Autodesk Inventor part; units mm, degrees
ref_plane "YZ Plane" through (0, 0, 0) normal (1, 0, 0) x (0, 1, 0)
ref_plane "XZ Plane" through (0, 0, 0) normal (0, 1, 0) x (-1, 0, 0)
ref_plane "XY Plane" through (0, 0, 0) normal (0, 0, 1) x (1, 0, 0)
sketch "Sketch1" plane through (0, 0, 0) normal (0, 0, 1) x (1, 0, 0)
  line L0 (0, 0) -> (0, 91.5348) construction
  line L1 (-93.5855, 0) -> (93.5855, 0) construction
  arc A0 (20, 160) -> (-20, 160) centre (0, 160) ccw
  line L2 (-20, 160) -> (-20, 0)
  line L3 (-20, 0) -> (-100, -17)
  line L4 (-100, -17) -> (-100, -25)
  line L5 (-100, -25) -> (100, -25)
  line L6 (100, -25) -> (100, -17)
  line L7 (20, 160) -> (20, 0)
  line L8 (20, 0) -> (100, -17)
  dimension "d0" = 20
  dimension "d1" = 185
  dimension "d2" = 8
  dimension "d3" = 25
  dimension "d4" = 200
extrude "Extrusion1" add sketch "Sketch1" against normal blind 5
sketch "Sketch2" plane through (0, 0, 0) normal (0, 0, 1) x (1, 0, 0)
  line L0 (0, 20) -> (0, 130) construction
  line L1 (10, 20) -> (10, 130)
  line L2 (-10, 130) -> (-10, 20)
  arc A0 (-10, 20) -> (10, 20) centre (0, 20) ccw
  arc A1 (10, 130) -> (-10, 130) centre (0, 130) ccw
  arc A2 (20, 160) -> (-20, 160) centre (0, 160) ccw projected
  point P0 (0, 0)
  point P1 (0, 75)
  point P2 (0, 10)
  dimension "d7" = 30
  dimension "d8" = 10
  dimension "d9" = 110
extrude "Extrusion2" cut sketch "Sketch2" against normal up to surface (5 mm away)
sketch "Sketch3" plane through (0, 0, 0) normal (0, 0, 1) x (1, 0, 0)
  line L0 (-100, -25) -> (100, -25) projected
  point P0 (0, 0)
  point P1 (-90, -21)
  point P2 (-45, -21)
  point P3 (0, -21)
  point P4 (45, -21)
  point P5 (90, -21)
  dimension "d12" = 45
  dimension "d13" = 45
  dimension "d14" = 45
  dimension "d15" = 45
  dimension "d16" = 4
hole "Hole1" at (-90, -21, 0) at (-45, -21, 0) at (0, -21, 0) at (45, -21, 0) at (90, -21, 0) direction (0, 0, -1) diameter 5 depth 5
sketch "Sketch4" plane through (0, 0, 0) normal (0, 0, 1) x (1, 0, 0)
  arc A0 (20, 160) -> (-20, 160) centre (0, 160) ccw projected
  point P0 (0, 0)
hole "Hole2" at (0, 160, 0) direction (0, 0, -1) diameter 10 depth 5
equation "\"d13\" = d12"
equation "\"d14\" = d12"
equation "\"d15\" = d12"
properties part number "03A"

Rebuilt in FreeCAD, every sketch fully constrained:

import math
import FreeCAD as App
import Part
import Sketcher

doc = App.newDocument("Part")
params = doc.addObject("Spreadsheet::Sheet", "Params")
for row, (alias, value) in enumerate([
    ("sketch1_radius", "20 mm"),
    ("sketch1_width", "200 mm"),
    ("sketch1_height", "8 mm"),
    ("pad1_length", "5 mm"),
    ("sketch2_radius", "10 mm"),
    ("sketch2_height", "110 mm"),
    ("pocket1_length", "5 mm"),
    ("sketch3_diameter", "5 mm"),
    ("hole_diameter", "5 mm"),
    ("hole_depth", "5 mm"),
    ("sketch4_diameter", "10 mm"),
    ("hole2_diameter", "10 mm"),
    ("hole2_depth", "5 mm"),
], start=1):
    params.set(f"A{row}", alias)
    params.set(f"B{row}", "=" + value)
    params.setAlias(f"B{row}", alias)

body = doc.addObject("PartDesign::Body", "Body")

# Sketch on XY plane
sketch1 = doc.addObject("Sketcher::SketchObject", "Sketch")
body.addObject(sketch1)
sketch1.AttachmentSupport = (doc.XY_Plane, [""])
sketch1.MapMode = "FlatFace"
sketch1.addGeometry(Part.LineSegment(App.Vector(20, 0, 0), App.Vector(20, 160, 0)), False)
sketch1.addGeometry(Part.ArcOfCircle(Part.Circle(App.Vector(0, 160, 0), App.Vector(0, 0, 1), 20), math.radians(0), math.radians(180)), False)
sketch1.addGeometry(Part.LineSegment(App.Vector(-20, 160, 0), App.Vector(-20, 0, 0)), False)
sketch1.addGeometry(Part.LineSegment(App.Vector(-20, 0, 0), App.Vector(-100, -17, 0)), False)
sketch1.addGeometry(Part.LineSegment(App.Vector(-100, -17, 0), App.Vector(-100, -25, 0)), False)
sketch1.addGeometry(Part.LineSegment(App.Vector(-100, -25, 0), App.Vector(100, -25, 0)), False)
sketch1.addGeometry(Part.LineSegment(App.Vector(100, -25, 0), App.Vector(100, -17, 0)), False)
sketch1.addGeometry(Part.LineSegment(App.Vector(100, -17, 0), App.Vector(20, 0, 0)), False)
sketch1.addConstraint(Sketcher.Constraint("Tangent", 0, 2, 1, 1))
sketch1.addConstraint(Sketcher.Constraint("Tangent", 1, 2, 2, 1))
sketch1.addConstraint(Sketcher.Constraint("Coincident", 2, 2, 3, 1))
sketch1.addConstraint(Sketcher.Constraint("Coincident", 3, 2, 4, 1))
sketch1.addConstraint(Sketcher.Constraint("Coincident", 4, 2, 5, 1))
sketch1.addConstraint(Sketcher.Constraint("Coincident", 5, 2, 6, 1))
sketch1.addConstraint(Sketcher.Constraint("Coincident", 6, 2, 7, 1))
sketch1.addConstraint(Sketcher.Constraint("Coincident", 7, 2, 0, 1))
sketch1.addConstraint(Sketcher.Constraint("Vertical", 0))
sketch1.addConstraint(Sketcher.Constraint("Vertical", 2))
sketch1.addConstraint(Sketcher.Constraint("Vertical", 4))
sketch1.addConstraint(Sketcher.Constraint("Horizontal", 5))
sketch1.addConstraint(Sketcher.Constraint("Vertical", 6))
sketch1.addConstraint(Sketcher.Constraint("Symmetric", 2, 2, 7, 2, -1, 1))
sketch1.addConstraint(Sketcher.Constraint("Symmetric", 3, 2, 6, 2, -2))
sketch1.addConstraint(Sketcher.Constraint("PointOnObject", 2, 2, -1))
sketch1.addConstraint(Sketcher.Constraint("Radius", 1, 20.0))
sketch1.addConstraint(Sketcher.Constraint("DistanceX", 5, 1, 5, 2, 200.0))
sketch1.addConstraint(Sketcher.Constraint("DistanceY", 4, 2, 4, 1, 8.0))
sketch1.addConstraint(Sketcher.Constraint("DistanceY", 4, 2, -1, 1, 25.0))
sketch1.addConstraint(Sketcher.Constraint("DistanceY", 4, 2, 1, 2, 185.0))
sketch1.setExpression("Constraints[16]", "Params.sketch1_radius")
sketch1.setExpression("Constraints[17]", "Params.sketch1_width")
sketch1.setExpression("Constraints[18]", "Params.sketch1_height")
pad1 = doc.addObject("PartDesign::Pad", "Pad")
body.addObject(pad1)
pad1.Profile = sketch1
pad1.setExpression("Length", "Params.pad1_length")
pad1.Reversed = True

# Sketch on XY plane
sketch2 = doc.addObject("Sketcher::SketchObject", "Sketch001")
body.addObject(sketch2)
sketch2.AttachmentSupport = (doc.XY_Plane, [""])
sketch2.MapMode = "FlatFace"
sketch2.addGeometry(Part.ArcOfCircle(Part.Circle(App.Vector(0, 20, 0), App.Vector(0, 0, 1), 10), math.radians(180), math.radians(360)), False)
sketch2.addGeometry(Part.LineSegment(App.Vector(10, 20, 0), App.Vector(10, 130, 0)), False)
sketch2.addGeometry(Part.ArcOfCircle(Part.Circle(App.Vector(0, 130, 0), App.Vector(0, 0, 1), 10), math.radians(0), math.radians(180)), False)
sketch2.addGeometry(Part.LineSegment(App.Vector(-10, 130, 0), App.Vector(-10, 20, 0)), False)
sketch2.addConstraint(Sketcher.Constraint("Tangent", 0, 2, 1, 1))
sketch2.addConstraint(Sketcher.Constraint("Tangent", 1, 2, 2, 1))
sketch2.addConstraint(Sketcher.Constraint("Tangent", 2, 2, 3, 1))
sketch2.addConstraint(Sketcher.Constraint("Tangent", 3, 2, 0, 1))
sketch2.addConstraint(Sketcher.Constraint("Vertical", 1))
sketch2.addConstraint(Sketcher.Constraint("Vertical", 3))
sketch2.addConstraint(Sketcher.Constraint("PointOnObject", 0, 3, -2))
sketch2.addConstraint(Sketcher.Constraint("Radius", 0, 10.0))
sketch2.addConstraint(Sketcher.Constraint("DistanceY", 1, 1, 1, 2, 110.0))
sketch2.addConstraint(Sketcher.Constraint("DistanceY", -1, 1, 0, 3, 20.0))
sketch2.setExpression("Constraints[7]", "Params.sketch2_radius")
sketch2.setExpression("Constraints[8]", "Params.sketch2_height")
pocket1 = doc.addObject("PartDesign::Pocket", "Pocket")
body.addObject(pocket1)
pocket1.Profile = sketch2
pocket1.setExpression("Length", "Params.pocket1_length")

# Sketch on XY plane
sketch3 = doc.addObject("Sketcher::SketchObject", "Sketch002")
body.addObject(sketch3)
sketch3.AttachmentSupport = (doc.XY_Plane, [""])
sketch3.MapMode = "FlatFace"
sketch3.addGeometry(Part.Circle(App.Vector(-90, -21, 0), App.Vector(0, 0, 1), 2.5), False)
sketch3.addGeometry(Part.Circle(App.Vector(-45, -21, 0), App.Vector(0, 0, 1), 2.5), False)
sketch3.addGeometry(Part.Circle(App.Vector(0, -21, 0), App.Vector(0, 0, 1), 2.5), False)
sketch3.addGeometry(Part.Circle(App.Vector(45, -21, 0), App.Vector(0, 0, 1), 2.5), False)
sketch3.addGeometry(Part.Circle(App.Vector(90, -21, 0), App.Vector(0, 0, 1), 2.5), False)
sketch3.addConstraint(Sketcher.Constraint("Equal", 0, 1))
sketch3.addConstraint(Sketcher.Constraint("Equal", 1, 2))
sketch3.addConstraint(Sketcher.Constraint("Equal", 2, 3))
sketch3.addConstraint(Sketcher.Constraint("Equal", 3, 4))
sketch3.addConstraint(Sketcher.Constraint("Symmetric", 1, 3, 3, 3, -2))
sketch3.addConstraint(Sketcher.Constraint("Symmetric", 0, 3, 4, 3, -2))
sketch3.addConstraint(Sketcher.Constraint("PointOnObject", 2, 3, -2))
sketch3.addConstraint(Sketcher.Constraint("Horizontal", 0, 3, 1, 3))
sketch3.addConstraint(Sketcher.Constraint("Horizontal", 1, 3, 2, 3))
sketch3.addConstraint(Sketcher.Constraint("Diameter", 0, 5.0))
sketch3.addConstraint(Sketcher.Constraint("DistanceX", 0, 3, -1, 1, 90.0))
sketch3.addConstraint(Sketcher.Constraint("DistanceY", 0, 3, -1, 1, 21.0))
sketch3.addConstraint(Sketcher.Constraint("DistanceX", 1, 3, -1, 1, 45.0))
sketch3.setExpression("Constraints[9]", "Params.sketch3_diameter")
doc.recompute()
hole = doc.addObject("PartDesign::Hole", "Hole")
body.addObject(hole)
hole.Profile = sketch3
hole.ThreadType = "None"
hole.setExpression("Diameter", "Params.hole_diameter")
hole.DepthType = "Dimension"
hole.setExpression("Depth", "Params.hole_depth")
hole.DrillPoint = "Flat"

# Sketch on XY plane
sketch4 = doc.addObject("Sketcher::SketchObject", "Sketch003")
body.addObject(sketch4)
sketch4.AttachmentSupport = (doc.XY_Plane, [""])
sketch4.MapMode = "FlatFace"
sketch4.addGeometry(Part.Circle(App.Vector(0, 160, 0), App.Vector(0, 0, 1), 5), False)
sketch4.addConstraint(Sketcher.Constraint("PointOnObject", 0, 3, -2))
sketch4.addConstraint(Sketcher.Constraint("Diameter", 0, 10.0))
sketch4.addConstraint(Sketcher.Constraint("DistanceY", -1, 1, 0, 3, 160.0))
sketch4.setExpression("Constraints[1]", "Params.sketch4_diameter")
doc.recompute()
hole2 = doc.addObject("PartDesign::Hole", "Hole001")
body.addObject(hole2)
hole2.Profile = sketch4
hole2.ThreadType = "None"
hole2.setExpression("Diameter", "Params.hole2_diameter")
hole2.DepthType = "Dimension"
hole2.setExpression("Depth", "Params.hole2_depth")
hole2.DrillPoint = "Flat"

doc.recompute()
